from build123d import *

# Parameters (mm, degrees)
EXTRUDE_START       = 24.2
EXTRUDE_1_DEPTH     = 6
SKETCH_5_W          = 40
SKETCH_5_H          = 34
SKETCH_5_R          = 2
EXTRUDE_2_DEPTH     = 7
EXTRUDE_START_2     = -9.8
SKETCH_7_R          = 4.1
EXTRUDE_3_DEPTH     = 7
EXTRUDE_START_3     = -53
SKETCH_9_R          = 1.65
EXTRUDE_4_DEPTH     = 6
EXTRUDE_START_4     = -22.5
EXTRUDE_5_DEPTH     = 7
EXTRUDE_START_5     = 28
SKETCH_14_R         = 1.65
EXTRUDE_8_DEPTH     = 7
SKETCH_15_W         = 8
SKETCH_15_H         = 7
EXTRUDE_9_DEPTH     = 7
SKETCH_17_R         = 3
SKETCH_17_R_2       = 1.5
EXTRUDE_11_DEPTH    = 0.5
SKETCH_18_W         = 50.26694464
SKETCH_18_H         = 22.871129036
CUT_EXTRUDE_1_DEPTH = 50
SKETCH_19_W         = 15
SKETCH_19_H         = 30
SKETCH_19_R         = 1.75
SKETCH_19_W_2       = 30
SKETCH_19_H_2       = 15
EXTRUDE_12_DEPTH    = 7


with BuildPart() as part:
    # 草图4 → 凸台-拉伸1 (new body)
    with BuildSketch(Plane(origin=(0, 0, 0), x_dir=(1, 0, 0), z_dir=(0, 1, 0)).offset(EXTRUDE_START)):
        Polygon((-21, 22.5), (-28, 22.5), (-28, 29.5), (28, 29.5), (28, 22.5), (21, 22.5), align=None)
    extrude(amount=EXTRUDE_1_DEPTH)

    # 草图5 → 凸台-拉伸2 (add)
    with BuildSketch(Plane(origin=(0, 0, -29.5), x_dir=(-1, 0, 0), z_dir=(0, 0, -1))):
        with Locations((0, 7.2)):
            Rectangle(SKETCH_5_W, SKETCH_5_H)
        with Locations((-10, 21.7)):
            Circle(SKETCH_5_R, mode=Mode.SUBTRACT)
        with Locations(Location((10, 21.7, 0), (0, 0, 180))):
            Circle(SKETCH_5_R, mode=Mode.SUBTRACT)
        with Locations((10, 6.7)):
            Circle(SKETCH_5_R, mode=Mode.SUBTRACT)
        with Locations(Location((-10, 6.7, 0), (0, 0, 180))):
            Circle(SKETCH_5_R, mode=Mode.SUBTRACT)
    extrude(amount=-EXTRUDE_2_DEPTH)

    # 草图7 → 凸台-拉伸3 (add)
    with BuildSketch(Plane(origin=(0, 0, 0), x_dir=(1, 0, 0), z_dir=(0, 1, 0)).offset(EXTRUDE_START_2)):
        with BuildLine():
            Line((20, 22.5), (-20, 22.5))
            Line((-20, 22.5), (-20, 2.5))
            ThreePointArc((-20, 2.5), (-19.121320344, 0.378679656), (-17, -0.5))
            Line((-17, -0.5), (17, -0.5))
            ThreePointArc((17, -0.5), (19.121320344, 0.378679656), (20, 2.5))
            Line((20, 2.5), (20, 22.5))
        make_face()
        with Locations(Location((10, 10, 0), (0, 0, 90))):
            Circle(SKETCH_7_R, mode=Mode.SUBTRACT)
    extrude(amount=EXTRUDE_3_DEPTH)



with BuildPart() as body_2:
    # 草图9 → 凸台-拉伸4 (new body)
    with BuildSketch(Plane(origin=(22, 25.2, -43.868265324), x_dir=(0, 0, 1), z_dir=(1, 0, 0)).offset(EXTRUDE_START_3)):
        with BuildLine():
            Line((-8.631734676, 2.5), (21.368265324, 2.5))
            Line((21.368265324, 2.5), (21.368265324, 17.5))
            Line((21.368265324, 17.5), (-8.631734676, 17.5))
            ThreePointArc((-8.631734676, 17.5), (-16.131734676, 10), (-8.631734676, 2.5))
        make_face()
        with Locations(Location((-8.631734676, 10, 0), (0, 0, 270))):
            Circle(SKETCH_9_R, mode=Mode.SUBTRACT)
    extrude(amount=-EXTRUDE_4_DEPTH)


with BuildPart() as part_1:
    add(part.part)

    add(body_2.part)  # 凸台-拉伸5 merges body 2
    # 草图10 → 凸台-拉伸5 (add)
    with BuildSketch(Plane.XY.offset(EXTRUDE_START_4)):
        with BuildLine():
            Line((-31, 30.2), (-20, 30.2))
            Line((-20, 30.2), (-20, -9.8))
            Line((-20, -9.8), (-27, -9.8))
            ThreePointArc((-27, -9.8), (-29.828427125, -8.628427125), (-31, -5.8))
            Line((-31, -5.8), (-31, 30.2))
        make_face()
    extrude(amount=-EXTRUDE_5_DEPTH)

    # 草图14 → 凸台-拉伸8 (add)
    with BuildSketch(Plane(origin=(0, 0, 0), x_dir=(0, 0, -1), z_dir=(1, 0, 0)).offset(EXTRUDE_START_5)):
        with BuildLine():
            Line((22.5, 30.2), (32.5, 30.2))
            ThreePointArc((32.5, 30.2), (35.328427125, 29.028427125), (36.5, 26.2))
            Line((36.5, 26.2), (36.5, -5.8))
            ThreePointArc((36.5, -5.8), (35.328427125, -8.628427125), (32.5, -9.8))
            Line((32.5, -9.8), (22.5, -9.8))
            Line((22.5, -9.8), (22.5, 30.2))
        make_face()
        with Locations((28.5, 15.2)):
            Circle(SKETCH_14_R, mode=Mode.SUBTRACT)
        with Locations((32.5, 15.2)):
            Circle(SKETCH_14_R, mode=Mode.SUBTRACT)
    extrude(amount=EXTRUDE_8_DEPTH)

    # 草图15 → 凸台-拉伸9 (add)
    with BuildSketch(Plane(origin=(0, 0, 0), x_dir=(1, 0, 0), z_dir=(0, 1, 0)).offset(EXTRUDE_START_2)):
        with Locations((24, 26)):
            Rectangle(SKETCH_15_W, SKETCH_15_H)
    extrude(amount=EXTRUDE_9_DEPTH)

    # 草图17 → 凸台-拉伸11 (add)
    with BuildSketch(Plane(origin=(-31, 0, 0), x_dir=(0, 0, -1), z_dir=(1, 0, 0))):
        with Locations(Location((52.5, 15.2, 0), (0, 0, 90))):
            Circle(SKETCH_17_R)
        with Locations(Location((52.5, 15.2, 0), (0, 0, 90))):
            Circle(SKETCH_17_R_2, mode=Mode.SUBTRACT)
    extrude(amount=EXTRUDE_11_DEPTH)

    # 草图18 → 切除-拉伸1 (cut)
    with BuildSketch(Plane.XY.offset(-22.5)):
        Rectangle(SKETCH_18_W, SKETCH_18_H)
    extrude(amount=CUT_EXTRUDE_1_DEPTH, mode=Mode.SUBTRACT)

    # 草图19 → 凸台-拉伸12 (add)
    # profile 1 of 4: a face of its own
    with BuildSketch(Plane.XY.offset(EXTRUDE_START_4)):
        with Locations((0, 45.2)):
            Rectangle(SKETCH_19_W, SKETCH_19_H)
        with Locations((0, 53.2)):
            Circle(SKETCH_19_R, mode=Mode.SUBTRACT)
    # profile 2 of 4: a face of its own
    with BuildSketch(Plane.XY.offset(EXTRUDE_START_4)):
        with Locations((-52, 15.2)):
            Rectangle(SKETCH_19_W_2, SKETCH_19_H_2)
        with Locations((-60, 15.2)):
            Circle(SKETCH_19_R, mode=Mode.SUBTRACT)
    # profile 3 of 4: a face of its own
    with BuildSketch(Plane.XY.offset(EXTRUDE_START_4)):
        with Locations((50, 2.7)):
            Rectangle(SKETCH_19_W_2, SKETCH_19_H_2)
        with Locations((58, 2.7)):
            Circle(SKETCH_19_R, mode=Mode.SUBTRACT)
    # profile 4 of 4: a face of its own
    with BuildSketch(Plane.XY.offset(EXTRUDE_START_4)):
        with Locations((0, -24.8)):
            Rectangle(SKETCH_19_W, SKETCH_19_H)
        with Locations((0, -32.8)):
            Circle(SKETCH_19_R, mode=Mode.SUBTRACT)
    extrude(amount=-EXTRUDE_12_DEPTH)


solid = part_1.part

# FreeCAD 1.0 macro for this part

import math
import FreeCAD as App
import Part
import Sketcher
from FreeCAD import Vector


def add_polygon(sketch, points):
    """Adds a closed chain of lines whose ends are joined by coincident constraints."""
    first, n = sketch.GeometryCount, len(points)
    for a, b in zip(points, points[1:] + points[:1]):
        sketch.addGeometry(Part.LineSegment(App.Vector(*a, 0), App.Vector(*b, 0)), False)
    for i in range(n):
        sketch.addConstraint(Sketcher.Constraint("Coincident", first + i, 2, first + (i + 1) % n, 1))

doc = App.newDocument("Part")
body = doc.addObject("PartDesign::Body", "Body")

sketch1 = doc.addObject("Sketcher::SketchObject", "Sketch")
body.addObject(sketch1)
sketch1.AttachmentSupport = (doc.XZ_Plane, [""])
sketch1.MapMode = "FlatFace"
sketch1.AttachmentOffset = App.Placement(Vector(0, 0, -24.2), App.Rotation())
add_polygon(sketch1, [(-28, -22), (28, -22), (28, -30), (-28, -30)])
sketch1.addConstraint([
    Sketcher.Constraint("Horizontal", 0),
    Sketcher.Constraint("Vertical", 1),
    Sketcher.Constraint("Horizontal", 2),
    Sketcher.Constraint("Vertical", 3),
    Sketcher.Constraint("DistanceX", 0, 1, 0, 2, 56.0),
    Sketcher.Constraint("DistanceY", 1, 2, 1, 1, 7.0),
    Sketcher.Constraint("DistanceX", -1, 1, 0, 2, 28.0),
    Sketcher.Constraint("DistanceY", 0, 2, -1, 1, 22.5),
])
pad1 = doc.addObject("PartDesign::Pad", "Pad")
body.addObject(pad1)
pad1.Profile = sketch1
pad1.Length = 6
pad1.Reversed = True

sketch2 = doc.addObject("Sketcher::SketchObject", "Sketch001")
body.addObject(sketch2)
sketch2.AttachmentSupport = (doc.XY_Plane, [""])
sketch2.MapMode = "FlatFace"
sketch2.AttachmentOffset = App.Placement(Vector(0, 0, -29.5), App.Rotation())
add_polygon(sketch2, [(20, 24.2), (20, -9.8), (-20, -9.8), (-20, 24.2)])
sketch2.addGeometry(Part.Circle(Vector(10, 6.7, 0), Vector(0, 0, 1), 2), False)
sketch2.addGeometry(Part.Circle(Vector(-10, 6.7, 0), Vector(0, 0, 1), 2), False)
sketch2.addGeometry(Part.Circle(Vector(10, 21.7, 0), Vector(0, 0, 1), 2), False)
sketch2.addGeometry(Part.Circle(Vector(-10, 21.7, 0), Vector(0, 0, 1), 2), False)
sketch2.addConstraint([
    Sketcher.Constraint("Vertical", 0),
    Sketcher.Constraint("Horizontal", 1),
    Sketcher.Constraint("Vertical", 2),
    Sketcher.Constraint("Horizontal", 3),
    Sketcher.Constraint("Equal", 4, 5),
    Sketcher.Constraint("Equal", 5, 6),
    Sketcher.Constraint("Equal", 6, 7),
    Sketcher.Constraint("Symmetric", 4, 3, 5, 3, -2),
    Sketcher.Constraint("Symmetric", 6, 3, 7, 3, -2),
    Sketcher.Constraint("Vertical", 4, 3, 6, 3),
    Sketcher.Constraint("Diameter", 4, 4.0),
    Sketcher.Constraint("DistanceX", 1, 2, 1, 1, 40.0),
    Sketcher.Constraint("DistanceY", 0, 2, 0, 1, 34.0),
    Sketcher.Constraint("DistanceX", -1, 1, 4, 3, 10.0),
    Sketcher.Constraint("DistanceX", -1, 1, 0, 2, 20.0),
    Sketcher.Constraint("DistanceY", 4, 3, 6, 3, 15.0),
    Sketcher.Constraint("DistanceY", -1, 1, 4, 3, 6.7),
    Sketcher.Constraint("DistanceY", 0, 2, -1, 1, 9.8),
])
pad2 = doc.addObject("PartDesign::Pad", "Pad001")
body.addObject(pad2)
pad2.Profile = sketch2
pad2.Length = 7

sketch3 = doc.addObject("Sketcher::SketchObject", "Sketch002")
body.addObject(sketch3)
sketch3.AttachmentSupport = (doc.XZ_Plane, [""])
sketch3.MapMode = "FlatFace"
sketch3.AttachmentOffset = App.Placement(Vector(0, 0, 9.8), App.Rotation())
sketch3.addGeometry([
    Part.LineSegment(Vector(20, -22.5, 0), Vector(-20, -22.5, 0)),
    Part.LineSegment(Vector(-20, -22.5, 0), Vector(-20, -2.5, 0)),
    Part.ArcOfCircle(Part.Circle(Vector(-17, -2.5, 0), Vector(0, 0, 1), 3), math.radians(90), math.radians(180)),
    Part.LineSegment(Vector(-17, 0.5, 0), Vector(17, 0.5, 0)),
    Part.ArcOfCircle(Part.Circle(Vector(17, -2.5, 0), Vector(0, 0, 1), 3), math.radians(0), math.radians(90)),
    Part.LineSegment(Vector(20, -2.5, 0), Vector(20, -22.5, 0)),
    Part.Circle(Vector(10, -10, 0), Vector(0, 0, 1), 4.1),
], False)
sketch3.addConstraint([
    Sketcher.Constraint("Coincident", 0, 2, 1, 1),
    Sketcher.Constraint("Tangent", 1, 2, 2, 2),
    Sketcher.Constraint("Tangent", 2, 1, 3, 1),
    Sketcher.Constraint("Tangent", 3, 2, 4, 2),
    Sketcher.Constraint("Tangent", 4, 1, 5, 1),
    Sketcher.Constraint("Coincident", 5, 2, 0, 1),
    Sketcher.Constraint("Horizontal", 0),
    Sketcher.Constraint("Vertical", 1),
    Sketcher.Constraint("Horizontal", 3),
    Sketcher.Constraint("Vertical", 5),
    Sketcher.Constraint("Equal", 2, 4),
    Sketcher.Constraint("Radius", 2, 3.0),
    Sketcher.Constraint("Diameter", 6, 8.2),
    Sketcher.Constraint("DistanceX", 0, 2, 0, 1, 40.0),
    Sketcher.Constraint("DistanceY", 1, 1, 1, 2, 20.0),
    Sketcher.Constraint("DistanceX", 2, 3, -1, 1, 17.0),
    Sketcher.Constraint("DistanceX", -1, 1, 6, 3, 10.0),
    Sketcher.Constraint("DistanceY", 6, 3, -1, 1, 10.0),
    Sketcher.Constraint("DistanceY", 2, 3, -1, 1, 2.5),
])
pad3 = doc.addObject("PartDesign::Pad", "Pad002")
body.addObject(pad3)
pad3.Profile = sketch3
pad3.Length = 7
pad3.Reversed = True
body2 = doc.addObject("PartDesign::Body", "Body001")

sketch4 = doc.addObject("Sketcher::SketchObject", "Sketch003")
body2.addObject(sketch4)
sketch4.AttachmentSupport = (doc.getObject("YZ_Plane001"), [""])
sketch4.MapMode = "FlatFace"
sketch4.AttachmentOffset = App.Placement(Vector(0, 0, -31), App.Rotation())
sketch4.addGeometry([
    Part.LineSegment(Vector(22.7, -52.5, 0), Vector(22.7, -22.5, 0)),
    Part.LineSegment(Vector(22.7, -22.5, 0), Vector(7.7, -22.5, 0)),
    Part.LineSegment(Vector(7.7, -22.5, 0), Vector(7.7, -52.5, 0)),
    Part.ArcOfCircle(Part.Circle(Vector(15.2, -52.5, 0), Vector(0, 0, 1), 7.5), math.radians(180), math.radians(360)),
    Part.Circle(Vector(15.2, -52.5, 0), Vector(0, 0, 1), 1.6),
], False)
sketch4.addConstraint([
    Sketcher.Constraint("Coincident", 0, 2, 1, 1),
    Sketcher.Constraint("Coincident", 1, 2, 2, 1),
    Sketcher.Constraint("Tangent", 2, 2, 3, 1),
    Sketcher.Constraint("Tangent", 3, 2, 0, 1),
    Sketcher.Constraint("Vertical", 0),
    Sketcher.Constraint("Horizontal", 1),
    Sketcher.Constraint("Vertical", 2),
    Sketcher.Constraint("Coincident", 4, 3, 3, 3),
    Sketcher.Constraint("Diameter", 4, 3.3),
    Sketcher.Constraint("Radius", 3, 7.5),
    Sketcher.Constraint("DistanceY", 0, 1, 0, 2, 30.0),
    Sketcher.Constraint("DistanceX", -1, 1, 3, 3, 15.2),
    Sketcher.Constraint("DistanceY", 3, 3, -1, 1, 52.5),
])
pad4 = doc.addObject("PartDesign::Pad", "Pad003")
body2.addObject(pad4)
pad4.Profile = sketch4
pad4.Length = 6
pad4.Reversed = True
body.AllowCompound = True
doc.recompute()

boolean = doc.addObject("PartDesign::Boolean", "Boolean")
body.addObject(boolean)
boolean.Type = "Fuse"
boolean.addObjects([body2])

sketch5 = doc.addObject("Sketcher::SketchObject", "Sketch004")
body.addObject(sketch5)
sketch5.AttachmentSupport = (doc.XY_Plane, [""])
sketch5.MapMode = "FlatFace"
sketch5.AttachmentOffset = App.Placement(Vector(0, 0, -22.5), App.Rotation())
sketch5.addGeometry([
    Part.LineSegment(Vector(-20, 30.2, 0), Vector(-31, 30.2, 0)),
    Part.LineSegment(Vector(-31, 30.2, 0), Vector(-31, -5.8, 0)),
    Part.ArcOfCircle(Part.Circle(Vector(-27, -5.8, 0), Vector(0, 0, 1), 4), math.radians(180), math.radians(270)),
    Part.LineSegment(Vector(-27, -9.8, 0), Vector(-20, -9.8, 0)),
    Part.LineSegment(Vector(-20, -9.8, 0), Vector(-20, 30.2, 0)),
], False)
sketch5.addConstraint([
    Sketcher.Constraint("Coincident", 0, 2, 1, 1),
    Sketcher.Constraint("Tangent", 1, 2, 2, 1),
    Sketcher.Constraint("Tangent", 2, 2, 3, 1),
    Sketcher.Constraint("Coincident", 3, 2, 4, 1),
    Sketcher.Constraint("Coincident", 4, 2, 0, 1),
    Sketcher.Constraint("Horizontal", 0),
    Sketcher.Constraint("Vertical", 1),
    Sketcher.Constraint("Horizontal", 3),
    Sketcher.Constraint("Vertical", 4),
    Sketcher.Constraint("Radius", 2, 4.0),
    Sketcher.Constraint("DistanceX", 0, 2, 0, 1, 11.0),
    Sketcher.Constraint("DistanceY", 1, 2, 1, 1, 36.0),
    Sketcher.Constraint("DistanceX", 2, 3, -1, 1, 27.0),
    Sketcher.Constraint("DistanceY", 2, 3, -1, 1, 5.8),
])
pad5 = doc.addObject("PartDesign::Pad", "Pad004")
body.addObject(pad5)
pad5.Profile = sketch5
pad5.Length = 7
pad5.Reversed = True

sketch6 = doc.addObject("Sketcher::SketchObject", "Sketch005")
body.addObject(sketch6)
sketch6.AttachmentSupport = (doc.YZ_Plane, [""])
sketch6.MapMode = "FlatFace"
sketch6.AttachmentOffset = App.Placement(Vector(0, 0, 28), App.Rotation())
sketch6.addGeometry([
    Part.LineSegment(Vector(30.2, -32.5, 0), Vector(30.2, -22.5, 0)),
    Part.LineSegment(Vector(30.2, -22.5, 0), Vector(-9.8, -22.5, 0)),
    Part.LineSegment(Vector(-9.8, -22.5, 0), Vector(-9.8, -32.5, 0)),
    Part.ArcOfCircle(Part.Circle(Vector(-5.8, -32.5, 0), Vector(0, 0, 1), 4), math.radians(180), math.radians(270)),
    Part.LineSegment(Vector(-5.8, -36.5, 0), Vector(26.2, -36.5, 0)),
    Part.ArcOfCircle(Part.Circle(Vector(26.2, -32.5, 0), Vector(0, 0, 1), 4), math.radians(-90), math.radians(0)),
    Part.Circle(Vector(15.2, -32.5, 0), Vector(0, 0, 1), 1.6),
    Part.Circle(Vector(15.2, -28.5, 0), Vector(0, 0, 1), 1.6),
], False)
sketch6.addConstraint([
    Sketcher.Constraint("Coincident", 0, 2, 1, 1),
    Sketcher.Constraint("Coincident", 1, 2, 2, 1),
    Sketcher.Constraint("Tangent", 2, 2, 3, 1),
    Sketcher.Constraint("Tangent", 3, 2, 4, 1),
    Sketcher.Constraint("Tangent", 4, 2, 5, 1),
    Sketcher.Constraint("Tangent", 5, 2, 0, 1),
    Sketcher.Constraint("Vertical", 0),
    Sketcher.Constraint("Horizontal", 1),
    Sketcher.Constraint("Vertical", 2),
    Sketcher.Constraint("Horizontal", 4),
    Sketcher.Constraint("Equal", 3, 5),
    Sketcher.Constraint("Equal", 6, 7),
    Sketcher.Constraint("Horizontal", 5, 3, 6, 3),
    Sketcher.Constraint("Vertical", 6, 3, 7, 3),
    Sketcher.Constraint("Radius", 3, 4.0),
    Sketcher.Constraint("Diameter", 6, 3.3),
    Sketcher.Constraint("DistanceX", 1, 2, 1, 1, 40.0),
    Sketcher.Constraint("DistanceY", 0, 1, 0, 2, 10.0),
    Sketcher.Constraint("DistanceX", 6, 3, 5, 3, 11.0),
    Sketcher.Constraint("DistanceY", 6, 3, 7, 3, 4.0),
    Sketcher.Constraint("DistanceX", 3, 3, -1, 1, 5.8),
    Sketcher.Constraint("DistanceY", 3, 3, -1, 1, 32.5),
])
pad6 = doc.addObject("PartDesign::Pad", "Pad005")
body.addObject(pad6)
pad6.Profile = sketch6
pad6.Length = 7

sketch7 = doc.addObject("Sketcher::SketchObject", "Sketch006")
body.addObject(sketch7)
sketch7.AttachmentSupport = (doc.XZ_Plane, [""])
sketch7.MapMode = "FlatFace"
sketch7.AttachmentOffset = App.Placement(Vector(0, 0, 9.8), App.Rotation())
add_polygon(sketch7, [(20, -30), (20, -22), (28, -22), (28, -30)])
sketch7.addConstraint([
    Sketcher.Constraint("Vertical", 0),
    Sketcher.Constraint("Horizontal", 1),
    Sketcher.Constraint("Vertical", 2),
    Sketcher.Constraint("Horizontal", 3),
    Sketcher.Constraint("DistanceX", 1, 1, 1, 2, 8.0),
    Sketcher.Constraint("DistanceY", 0, 1, 0, 2, 7.0),
    Sketcher.Constraint("DistanceX", -1, 1, 0, 2, 20.0),
    Sketcher.Constraint("DistanceY", 0, 2, -1, 1, 22.5),
])
pad7 = doc.addObject("PartDesign::Pad", "Pad006")
body.addObject(pad7)
pad7.Profile = sketch7
pad7.Length = 7
pad7.Reversed = True

sketch8 = doc.addObject("Sketcher::SketchObject", "Sketch007")
body.addObject(sketch8)
sketch8.AttachmentSupport = (doc.YZ_Plane, [""])
sketch8.MapMode = "FlatFace"
sketch8.AttachmentOffset = App.Placement(Vector(0, 0, -31), App.Rotation())
sketch8.addGeometry([
    Part.Circle(Vector(15.2, -52.5, 0), Vector(0, 0, 1), 3),
    Part.Circle(Vector(15.2, -52.5, 0), Vector(0, 0, 1), 1.5),
], False)
sketch8.addConstraint([
    Sketcher.Constraint("Coincident", 1, 3, 0, 3),
    Sketcher.Constraint("Diameter", 0, 6.0),
    Sketcher.Constraint("Diameter", 1, 3.0),
    Sketcher.Constraint("DistanceX", -1, 1, 0, 3, 15.2),
    Sketcher.Constraint("DistanceY", 0, 3, -1, 1, 52.5),
])
pad8 = doc.addObject("PartDesign::Pad", "Pad007")
body.addObject(pad8)
pad8.Profile = sketch8
pad8.Length = 0.5

sketch9 = doc.addObject("Sketcher::SketchObject", "Sketch008")
body.addObject(sketch9)
sketch9.AttachmentSupport = (doc.XY_Plane, [""])
sketch9.MapMode = "FlatFace"
sketch9.AttachmentOffset = App.Placement(Vector(0, 0, -22.5), App.Rotation())
add_polygon(sketch9, [(-25, 11), (-25, -11), (25, -11), (25, 11)])
sketch9.addConstraint([
    Sketcher.Constraint("Vertical", 0),
    Sketcher.Constraint("Horizontal", 1),
    Sketcher.Constraint("Vertical", 2),
    Sketcher.Constraint("Horizontal", 3),
    Sketcher.Constraint("Symmetric", 0, 2, 2, 2, -1, 1),
    Sketcher.Constraint("DistanceY", 0, 2, 0, 1, 22.871129),
    Sketcher.Constraint("DistanceX", 1, 1, 1, 2, 50.266945),
])
pocket1 = doc.addObject("PartDesign::Pocket", "Pocket")
body.addObject(pocket1)
pocket1.Profile = sketch9
pocket1.Length = 50
pocket1.Reversed = True

sketch10 = doc.addObject("Sketcher::SketchObject", "Sketch009")
body.addObject(sketch10)
sketch10.AttachmentSupport = (doc.XY_Plane, [""])
sketch10.MapMode = "FlatFace"
sketch10.AttachmentOffset = App.Placement(Vector(0, 0, -22.5), App.Rotation())
add_polygon(sketch10, [(-7.5, 60.2), (-7.5, 30.2), (7.5, 30.2), (7.5, 60.2)])
sketch10.addGeometry(Part.Circle(Vector(0, 53.2, 0), Vector(0, 0, 1), 1.8), False)
add_polygon(sketch10, [(-67, 22.7), (-67, 7.7), (-37, 7.7), (-37, 22.7)])
sketch10.addGeometry(Part.Circle(Vector(-60, 15.2, 0), Vector(0, 0, 1), 1.8), False)
add_polygon(sketch10, [(35, 10.2), (35, -4.8), (65, -4.8), (65, 10.2)])
sketch10.addGeometry(Part.Circle(Vector(58, 2.7, 0), Vector(0, 0, 1), 1.8), False)
add_polygon(sketch10, [(-7.5, -9.8), (-7.5, -39.8), (7.5, -39.8), (7.5, -9.8)])
sketch10.addGeometry(Part.Circle(Vector(0, -32.8, 0), Vector(0, 0, 1), 1.8), False)
sketch10.addConstraint([
    Sketcher.Constraint("Vertical", 0),
    Sketcher.Constraint("Horizontal", 1),
    Sketcher.Constraint("Vertical", 2),
    Sketcher.Constraint("Horizontal", 3),
    Sketcher.Constraint("Vertical", 5),
    Sketcher.Constraint("Horizontal", 6),
    Sketcher.Constraint("Vertical", 7),
    Sketcher.Constraint("Horizontal", 8),
    Sketcher.Constraint("Vertical", 10),
    Sketcher.Constraint("Horizontal", 11),
    Sketcher.Constraint("Vertical", 12),
    Sketcher.Constraint("Horizontal", 13),
    Sketcher.Constraint("Vertical", 15),
    Sketcher.Constraint("Horizontal", 16),
    Sketcher.Constraint("Vertical", 17),
    Sketcher.Constraint("Horizontal", 18),
    Sketcher.Constraint("Equal", 4, 9),
    Sketcher.Constraint("Equal", 9, 14),
    Sketcher.Constraint("Equal", 14, 19),
    Sketcher.Constraint("PointOnObject", 4, 3, -2),
    Sketcher.Constraint("PointOnObject", 19, 3, -2),
    Sketcher.Constraint("Vertical", 3, 2, 15, 2),
    Sketcher.Constraint("Vertical", 2, 2, 16, 2),
    Sketcher.Constraint("Equal", 8, 11),
    Sketcher.Constraint("Equal", 13, 0),
    Sketcher.Constraint("Equal", 18, 5),
    Sketcher.Constraint("Equal", 7, 10),
    Sketcher.Constraint("Equal", 2, 15),
    Sketcher.Constraint("Diameter", 4, 3.5),
    Sketcher.Constraint("DistanceX", 1, 1, 1, 2, 15.0),
    Sketcher.Constraint("DistanceX", 6, 1, 6, 2, 30.0),
    Sketcher.Constraint("DistanceX", 9, 3, -1, 1, 60.0),
    Sketcher.Constraint("DistanceX", -1, 1, 14, 3, 58.0),
    Sketcher.Constraint("DistanceX", 5, 2, -1, 1, 67.0),
    Sketcher.Constraint("DistanceX", -1, 1, 10, 2, 35.0),
    Sketcher.Constraint("DistanceY", 9, 3, 4, 3, 38.0),
    Sketcher.Constraint("DistanceY", 19, 3, 9, 3, 48.0),
    Sketcher.Constraint("DistanceY", 0, 2, 4, 3, 23.0),
    Sketcher.Constraint("DistanceY", 10, 2, 1, 2, 35.0),
    Sketcher.Constraint("DistanceY", 15, 2, 19, 3, 7.0),
    Sketcher.Constraint("DistanceY", -1, 1, 4, 3, 53.2),
    Sketcher.Constraint("DistanceY", -1, 1, 14, 3, 2.7),
    Sketcher.Constraint("DistanceX", 0, 2, -1, 1, 7.5),
    Sketcher.Constraint("DistanceY", -1, 1, 5, 2, 7.7),
])
pad9 = doc.addObject("PartDesign::Pad", "Pad008")
body.addObject(pad9)
pad9.Profile = sketch10
pad9.Length = 7
pad9.Reversed = True

doc.recompute()
